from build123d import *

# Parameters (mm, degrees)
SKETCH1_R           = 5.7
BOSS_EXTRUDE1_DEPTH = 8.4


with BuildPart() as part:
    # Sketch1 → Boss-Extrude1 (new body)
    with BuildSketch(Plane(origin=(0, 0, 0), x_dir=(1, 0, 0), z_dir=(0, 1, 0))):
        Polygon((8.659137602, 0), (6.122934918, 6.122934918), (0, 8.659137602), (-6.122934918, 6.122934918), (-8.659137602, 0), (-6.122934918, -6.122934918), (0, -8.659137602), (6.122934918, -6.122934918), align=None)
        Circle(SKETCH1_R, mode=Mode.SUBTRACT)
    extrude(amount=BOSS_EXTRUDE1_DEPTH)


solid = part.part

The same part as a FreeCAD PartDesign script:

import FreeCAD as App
import Part
import Sketcher
Q = App.Units.Quantity

doc = App.newDocument("Part")
params = doc.addObject("Spreadsheet::Sheet", "Params")
for row, (alias, value) in enumerate([
    ("sketch1_diameter", "11.4 mm"),
    ("pad1_length", "8.4 mm"),
], start=1):
    params.set(f"A{row}", alias)
    params.set(f"B{row}", "=" + value)
    params.setAlias(f"B{row}", alias)

body = doc.addObject("PartDesign::Body", "Body")

# Sketch on XZ plane
sketch1 = body.newObject("Sketcher::SketchObject", "Sketch")
sketch1.AttachmentSupport = (doc.getObject("XZ_Plane"), [""])
sketch1.MapMode = "FlatFace"
sketch1.addGeometry([
    Part.LineSegment(App.Vector(9, 0, 0), App.Vector(6, -6, 0)),  # 0
    Part.LineSegment(App.Vector(6, -6, 0), App.Vector(0, -9, 0)),  # 1
    Part.LineSegment(App.Vector(0, -9, 0), App.Vector(-6, -6, 0)),  # 2
    Part.LineSegment(App.Vector(-6, -6, 0), App.Vector(-9, 0, 0)),  # 3
    Part.LineSegment(App.Vector(-9, 0, 0), App.Vector(-6, 6, 0)),  # 4
    Part.LineSegment(App.Vector(-6, 6, 0), App.Vector(0, 9, 0)),  # 5
    Part.LineSegment(App.Vector(0, 9, 0), App.Vector(6, 6, 0)),  # 6
    Part.LineSegment(App.Vector(6, 6, 0), App.Vector(9, 0, 0)),  # 7
    Part.Circle(App.Vector(0, 0, 0), App.Vector(0, 0, 1), 6),  # 8
], False)
sketch1.addConstraint([
    Sketcher.Constraint("Coincident", 0, 2, 1, 1),
    Sketcher.Constraint("Coincident", 1, 2, 2, 1),
    Sketcher.Constraint("Coincident", 2, 2, 3, 1),
    Sketcher.Constraint("Coincident", 3, 2, 4, 1),
    Sketcher.Constraint("Coincident", 4, 2, 5, 1),
    Sketcher.Constraint("Coincident", 5, 2, 6, 1),
    Sketcher.Constraint("Coincident", 6, 2, 7, 1),
    Sketcher.Constraint("Coincident", 7, 2, 0, 1),
    Sketcher.Constraint("Coincident", 8, 3, -1, 1),
    Sketcher.Constraint("Symmetric", 0, 2, 4, 2, -1, 1),
    Sketcher.Constraint("Symmetric", 1, 2, 5, 2, -1, 1),
    Sketcher.Constraint("Symmetric", 2, 2, 6, 2, -1, 1),
    Sketcher.Constraint("Symmetric", 3, 2, 7, 2, -1, 1),
    Sketcher.Constraint("Symmetric", 0, 2, 2, 2, -2),
    Sketcher.Constraint("PointOnObject", 1, 2, -2),
    Sketcher.Constraint("PointOnObject", 3, 2, -1),
    Sketcher.Constraint("Perpendicular", 0, 2),
    Sketcher.Constraint("Equal", 0, 1),
    Sketcher.Constraint("Diameter", 8, Q("11.4 mm")),
    Sketcher.Constraint("Angle", 0, Q("-112.5 deg")),
    Sketcher.Constraint("DistanceX", 2, 2, 0, 2, Q("12.24587 mm")),
])
sketch1.setExpression("Constraints[18]", "Params.sketch1_diameter")
pad1 = body.newObject("PartDesign::Pad", "Pad")
pad1.Profile = sketch1
pad1.setExpression("Length", "Params.pad1_length")
pad1.Reversed = True

doc.recompute()
